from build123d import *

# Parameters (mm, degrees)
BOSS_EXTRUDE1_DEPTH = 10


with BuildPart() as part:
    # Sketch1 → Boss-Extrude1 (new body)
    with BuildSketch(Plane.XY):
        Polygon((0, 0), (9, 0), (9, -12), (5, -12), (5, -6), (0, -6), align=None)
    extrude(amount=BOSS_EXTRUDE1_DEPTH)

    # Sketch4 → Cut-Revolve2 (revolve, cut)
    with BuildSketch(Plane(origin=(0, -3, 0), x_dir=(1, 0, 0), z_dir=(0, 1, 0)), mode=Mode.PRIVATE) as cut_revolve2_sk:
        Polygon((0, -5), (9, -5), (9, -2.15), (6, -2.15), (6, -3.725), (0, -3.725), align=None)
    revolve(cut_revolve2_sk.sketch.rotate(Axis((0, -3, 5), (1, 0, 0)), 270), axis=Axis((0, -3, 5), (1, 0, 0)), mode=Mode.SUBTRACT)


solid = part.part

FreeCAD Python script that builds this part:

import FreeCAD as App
import Part
import Sketcher

V = App.Vector

doc = App.newDocument("Part")
body = doc.addObject("PartDesign::Body", "Body")

sketch1 = body.newObject("Sketcher::SketchObject", "Sketch")
sketch1.AttachmentSupport = (doc.getObject("XY_Plane"), [""])
sketch1.MapMode = "FlatFace"
sketch1.addGeometry([
    Part.LineSegment(V(9, 0, 0), V(0, 0, 0)),
    Part.LineSegment(V(0, 0, 0), V(0, -6, 0)),
    Part.LineSegment(V(0, -6, 0), V(5, -6, 0)),
    Part.LineSegment(V(5, -6, 0), V(5, -12, 0)),
    Part.LineSegment(V(5, -12, 0), V(9, -12, 0)),
    Part.LineSegment(V(9, -12, 0), V(9, 0, 0)),
], False)
sketch1.addConstraint([
    Sketcher.Constraint("Coincident", 0, 2, 1, 1),
    Sketcher.Constraint("Coincident", 1, 2, 2, 1),
    Sketcher.Constraint("Coincident", 2, 2, 3, 1),
    Sketcher.Constraint("Coincident", 3, 2, 4, 1),
    Sketcher.Constraint("Coincident", 4, 2, 5, 1),
    Sketcher.Constraint("Coincident", 5, 2, 0, 1),
    Sketcher.Constraint("Horizontal", 0),
    Sketcher.Constraint("Vertical", 1),
    Sketcher.Constraint("Horizontal", 2),
    Sketcher.Constraint("Vertical", 3),
    Sketcher.Constraint("Horizontal", 4),
    Sketcher.Constraint("Vertical", 5),
    Sketcher.Constraint("Coincident", 0, 2, -1, 1),
    Sketcher.Constraint("Equal", 1, 3),
    Sketcher.Constraint("DistanceX", 0, 2, 0, 1, 9.0),
    Sketcher.Constraint("DistanceX", 2, 1, 2, 2, 5.0),
    Sketcher.Constraint("DistanceY", 1, 2, 1, 1, 6.0),
])
pad1 = body.newObject("PartDesign::Pad", "Pad")
pad1.Profile = sketch1
pad1.Length = 10

sketch2 = body.newObject("Sketcher::SketchObject", "Sketch001")
sketch2.AttachmentSupport = (doc.getObject("XZ_Plane"), [""])
sketch2.MapMode = "FlatFace"
sketch2.AttachmentOffset = App.Placement(V(0, 0, 3), App.Rotation())
sketch2.addGeometry([
    Part.LineSegment(V(0, 5, 0), V(9, 5, 0)),
    Part.LineSegment(V(9, 5, 0), V(9, 2.15, 0)),
    Part.LineSegment(V(9, 2.15, 0), V(6, 2.15, 0)),
    Part.LineSegment(V(6, 2.15, 0), V(6, 3.725, 0)),
    Part.LineSegment(V(6, 3.725, 0), V(0, 3.725, 0)),
    Part.LineSegment(V(0, 3.725, 0), V(0, 5, 0)),
], False)
sketch2.addGeometry(Part.LineSegment(V(0, 5, 0), V(9, 5, 0)), True)
sketch2.addConstraint([
    Sketcher.Constraint("Coincident", 0, 2, 1, 1),
    Sketcher.Constraint("Coincident", 1, 2, 2, 1),
    Sketcher.Constraint("Coincident", 2, 2, 3, 1),
    Sketcher.Constraint("Coincident", 3, 2, 4, 1),
    Sketcher.Constraint("Coincident", 4, 2, 5, 1),
    Sketcher.Constraint("Coincident", 5, 2, 0, 1),
    Sketcher.Constraint("Horizontal", 0),
    Sketcher.Constraint("Vertical", 1),
    Sketcher.Constraint("Horizontal", 2),
    Sketcher.Constraint("Vertical", 3),
    Sketcher.Constraint("Horizontal", 4),
    Sketcher.Constraint("Vertical", 5),
    Sketcher.Constraint("Horizontal", 6),
    Sketcher.Constraint("Coincident", 6, 1, 5, 2),
    Sketcher.Constraint("PointOnObject", 4, 2, -2),
    Sketcher.Constraint("Vertical", 1, 2, 6, 2),
    Sketcher.Constraint("DistanceX", 0, 1, 0, 2, 9.0),
    Sketcher.Constraint("DistanceX", 2, 2, 2, 1, 3.0),
    Sketcher.Constraint("DistanceY", -1, 1, 0, 2, 5.0),
    Sketcher.Constraint("DistanceY", 1, 2, 1, 1, 2.85),
    Sketcher.Constraint("DistanceY", 3, 1, 3, 2, 1.575),
])
groove = body.newObject("PartDesign::Groove", "Groove")
groove.Profile = sketch2
groove.ReferenceAxis = (sketch2, ["Axis0"])
groove.Angle = 360

doc.recompute()
